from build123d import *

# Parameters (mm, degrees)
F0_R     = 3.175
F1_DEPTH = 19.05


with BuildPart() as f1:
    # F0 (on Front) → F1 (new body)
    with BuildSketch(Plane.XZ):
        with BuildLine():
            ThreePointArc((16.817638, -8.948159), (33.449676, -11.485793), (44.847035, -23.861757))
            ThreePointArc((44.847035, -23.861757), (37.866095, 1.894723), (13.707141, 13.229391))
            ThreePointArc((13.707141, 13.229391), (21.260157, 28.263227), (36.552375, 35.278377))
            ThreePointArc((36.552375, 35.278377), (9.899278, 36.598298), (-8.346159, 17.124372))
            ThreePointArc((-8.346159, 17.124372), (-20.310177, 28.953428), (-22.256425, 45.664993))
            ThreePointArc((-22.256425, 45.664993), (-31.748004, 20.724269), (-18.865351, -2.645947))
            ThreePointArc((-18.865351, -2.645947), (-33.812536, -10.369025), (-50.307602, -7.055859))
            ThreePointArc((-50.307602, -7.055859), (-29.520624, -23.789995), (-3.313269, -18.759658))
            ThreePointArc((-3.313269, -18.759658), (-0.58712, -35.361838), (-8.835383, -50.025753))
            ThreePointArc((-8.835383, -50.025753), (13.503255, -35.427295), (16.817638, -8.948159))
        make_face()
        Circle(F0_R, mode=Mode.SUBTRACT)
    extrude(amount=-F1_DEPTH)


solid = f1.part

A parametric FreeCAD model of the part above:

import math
import FreeCAD as App
import Part
import Sketcher
from FreeCAD import Vector
Q = App.Units.Quantity

doc = App.newDocument("Part")
body = doc.addObject("PartDesign::Body", "Body")

sketch1 = doc.addObject("Sketcher::SketchObject", "Sketch")
body.addObject(sketch1)
sketch1.AttachmentSupport = (doc.XZ_Plane, [""])
sketch1.MapMode = "FlatFace"
sketch1.addGeometry([
    Part.ArcOfCircle(Part.Circle(Vector(21.518798, -33.90931, 0), Vector(0, 0, 1), 25.399999), math.radians(23.301713), math.radians(100.666091)),
    Part.ArcOfCircle(Part.Circle(Vector(13.549585, -18.520217, 0), Vector(0, 0, 1), 31.749999), math.radians(-9.685359), math.radians(89.715675)),
    Part.ArcOfCircle(Part.Circle(Vector(38.899347, 9.987039, 0), Vector(0, 0, 1), 25.400001), math.radians(95.301719), math.radians(172.666088)),
    Part.ArcOfCircle(Part.Circle(Vector(21.800825, 7.16336, 0), Vector(0, 0, 1), 31.749999), math.radians(62.314643), math.radians(161.715676)),
    Part.ArcOfCircle(Part.Circle(Vector(2.522319, 40.08164, 0), Vector(0, 0, 1), 25.4), math.radians(167.301713), math.radians(244.666091)),
    Part.ArcOfCircle(Part.Circle(Vector(-0.075932, 22.947417, 0), Vector(0, 0, 1), 31.750001), math.radians(134.314645), math.radians(233.715672)),
    Part.ArcOfCircle(Part.Circle(Vector(-37.340465, 14.784773, 0), Vector(0, 0, 1), 25.399997), math.radians(-120.69829), math.radians(-43.333906)),
    Part.ArcOfCircle(Part.Circle(Vector(-21.847754, 7.018925, 0), Vector(0, 0, 1), 31.75), math.radians(-153.685357), math.radians(-54.284328)),
    Part.ArcOfCircle(Part.Circle(Vector(-25.599995, -30.944147, 0), Vector(0, 0, 1), 25.399999), math.radians(-48.698286), math.radians(28.666091)),
    Part.ArcOfCircle(Part.Circle(Vector(-13.426721, -18.609482, 0), Vector(0, 0, 1), 31.749999), math.radians(-81.685357), math.radians(17.715674)),
    Part.Circle(Vector(0, 0, 0), Vector(0, 0, 1), 3.175),
], False)
sketch1.addConstraint([
    Sketcher.Constraint("Coincident", 0, 1, 1, 1),
    Sketcher.Constraint("Coincident", 1, 2, 2, 2),
    Sketcher.Constraint("Coincident", 2, 1, 3, 1),
    Sketcher.Constraint("Coincident", 3, 2, 4, 2),
    Sketcher.Constraint("Coincident", 4, 1, 5, 1),
    Sketcher.Constraint("Coincident", 5, 2, 6, 2),
    Sketcher.Constraint("Coincident", 6, 1, 7, 1),
    Sketcher.Constraint("Coincident", 7, 2, 8, 2),
    Sketcher.Constraint("Coincident", 8, 1, 9, 1),
    Sketcher.Constraint("Coincident", 9, 2, 0, 2),
    Sketcher.Constraint("Coincident", 10, 3, -1, 1),
    Sketcher.Constraint("Equal", 1, 3),
    Sketcher.Constraint("Equal", 2, 4),
    Sketcher.Constraint("Equal", 3, 5),
    Sketcher.Constraint("Equal", 0, 6),
    Sketcher.Constraint("Equal", 5, 7),
    Sketcher.Constraint("Equal", 6, 8),
    Sketcher.Constraint("Equal", 7, 9),
    Sketcher.Constraint("Radius", 0, Q("1 in")),
    Sketcher.Constraint("Radius", 2, Q("1.0000001 in")),
    Sketcher.Constraint("Diameter", 10, Q("0.25 in")),
    Sketcher.Constraint("Radius", 1, Q("1.25 in")),
    Sketcher.Constraint("DistanceX", -1, 1, 0, 3, Q("21.518798 mm")),
    Sketcher.Constraint("DistanceY", 2, 3, 4, 3, Q("30.094602 mm")),
    Sketcher.Constraint("DistanceX", 3, 2, 1, 2, Q("22.0533 mm")),
    Sketcher.Constraint("DistanceY", 7, 2, 9, 2, Q("9.811499 mm")),
    Sketcher.Constraint("DistanceY", 0, 3, -1, 1, Q("33.90931 mm")),
    Sketcher.Constraint("DistanceY", -1, 1, 2, 3, Q("9.987039 mm")),
    Sketcher.Constraint("DistanceY", -1, 1, 3, 3, Q("7.16336 mm")),
    Sketcher.Constraint("DistanceX", -1, 1, 4, 3, Q("2.522319 mm")),
    Sketcher.Constraint("DistanceX", 5, 3, -1, 1, Q("0.075932 mm")),
    Sketcher.Constraint("DistanceX", 9, 3, -1, 1, Q("13.426721 mm")),
    Sketcher.Constraint("DistanceX", -1, 1, 1, 2, Q("13.707141 mm")),
    Sketcher.Constraint("DistanceY", -1, 1, 1, 2, Q("13.229391 mm")),
    Sketcher.Constraint("DistanceX", 5, 2, -1, 1, Q("18.865351 mm")),
    Sketcher.Constraint("DistanceY", 6, 1, -1, 1, Q("7.055859 mm")),
    Sketcher.Constraint("DistanceX", 7, 2, -1, 1, Q("3.313269 mm")),
    Sketcher.Constraint("DistanceY", 7, 2, -1, 1, Q("18.759658 mm")),
    Sketcher.Constraint("DistanceX", 1, 3, 2, 3, Q("25.349762 mm")),
    Sketcher.Constraint("DistanceY", 2, 3, 5, 3, Q("12.960378 mm")),
    Sketcher.Constraint("DistanceX", 6, 3, 3, 3, Q("59.14129 mm")),
    Sketcher.Constraint("DistanceX", 8, 3, 7, 3, Q("3.752241 mm")),
])
pad1 = doc.addObject("PartDesign::Pad", "Pad")
body.addObject(pad1)
pad1.Profile = sketch1
pad1.Length = Q("0.75 in")
pad1.Reversed = True

doc.recompute()
